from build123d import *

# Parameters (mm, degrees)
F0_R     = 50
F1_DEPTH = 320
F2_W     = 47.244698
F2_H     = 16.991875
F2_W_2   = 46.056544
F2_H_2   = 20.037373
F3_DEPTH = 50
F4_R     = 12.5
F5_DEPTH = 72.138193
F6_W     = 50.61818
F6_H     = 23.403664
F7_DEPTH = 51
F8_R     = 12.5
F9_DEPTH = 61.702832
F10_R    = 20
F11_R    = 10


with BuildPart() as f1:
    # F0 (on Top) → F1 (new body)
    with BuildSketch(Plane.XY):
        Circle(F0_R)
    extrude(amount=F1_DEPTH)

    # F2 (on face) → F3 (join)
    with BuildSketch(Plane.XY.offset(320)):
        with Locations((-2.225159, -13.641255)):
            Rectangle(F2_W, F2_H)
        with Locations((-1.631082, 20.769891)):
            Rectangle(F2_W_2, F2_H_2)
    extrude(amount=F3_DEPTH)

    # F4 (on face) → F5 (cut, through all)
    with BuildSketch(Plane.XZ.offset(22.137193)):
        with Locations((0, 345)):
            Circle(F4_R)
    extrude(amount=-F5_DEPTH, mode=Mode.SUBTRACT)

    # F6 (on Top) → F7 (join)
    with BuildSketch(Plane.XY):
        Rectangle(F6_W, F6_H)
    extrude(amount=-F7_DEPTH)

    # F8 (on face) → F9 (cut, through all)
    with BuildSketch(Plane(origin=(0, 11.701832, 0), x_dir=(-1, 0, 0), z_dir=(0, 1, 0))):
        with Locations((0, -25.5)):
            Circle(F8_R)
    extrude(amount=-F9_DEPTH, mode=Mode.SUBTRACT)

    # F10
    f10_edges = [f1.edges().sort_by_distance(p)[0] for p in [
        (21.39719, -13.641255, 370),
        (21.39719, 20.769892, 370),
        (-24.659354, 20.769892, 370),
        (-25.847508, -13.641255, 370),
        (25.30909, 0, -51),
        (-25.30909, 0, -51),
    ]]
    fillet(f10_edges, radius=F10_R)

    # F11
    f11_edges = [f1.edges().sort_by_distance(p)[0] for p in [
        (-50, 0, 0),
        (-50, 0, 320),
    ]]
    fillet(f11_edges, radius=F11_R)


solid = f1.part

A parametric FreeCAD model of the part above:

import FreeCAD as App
import Part
import Sketcher

V = App.Vector
Q = App.Units.Quantity


def edges_at(feature, points):
    """Names of the edges that pass closest to the given points."""
    edges = feature.Shape.Edges
    near = lambda p: min(range(len(edges)), key=lambda i: edges[i].distToShape(Part.Vertex(*p))[0])
    return sorted({f"Edge{near(p) + 1}" for p in points})

doc = App.newDocument("Part")
body = doc.addObject("PartDesign::Body", "Body")

sketch1 = doc.addObject("Sketcher::SketchObject", "Sketch")
body.addObject(sketch1)
sketch1.AttachmentSupport = (doc.XY_Plane, [""])
sketch1.MapMode = "FlatFace"
sketch1.addGeometry(Part.Circle(V(0, 0, 0), V(0, 0, 1), 50), False)
sketch1.addConstraint([
    Sketcher.Constraint("Coincident", 0, 3, -1, 1),
    Sketcher.Constraint("Diameter", 0, Q("100 mm")),
])
pad1 = doc.addObject("PartDesign::Pad", "Pad")
body.addObject(pad1)
pad1.Profile = sketch1
pad1.Length = 320

sketch2 = doc.addObject("Sketcher::SketchObject", "Sketch001")
body.addObject(sketch2)
sketch2.AttachmentSupport = (doc.XY_Plane, [""])
sketch2.MapMode = "FlatFace"
sketch2.AttachmentOffset = App.Placement(V(0, 0, 320), App.Rotation())
sketch2.addGeometry([
    Part.LineSegment(V(-26, -5, 0), V(-26, -22, 0)),
    Part.LineSegment(V(-26, -22, 0), V(21, -22, 0)),
    Part.LineSegment(V(21, -22, 0), V(21, -5, 0)),
    Part.LineSegment(V(21, -5, 0), V(-26, -5, 0)),
    Part.LineSegment(V(-25, 31, 0), V(-25, 11, 0)),
    Part.LineSegment(V(-25, 11, 0), V(21, 11, 0)),
    Part.LineSegment(V(21, 11, 0), V(21, 31, 0)),
    Part.LineSegment(V(21, 31, 0), V(-25, 31, 0)),
], False)
sketch2.addConstraint([
    Sketcher.Constraint("Coincident", 0, 2, 1, 1),
    Sketcher.Constraint("Coincident", 1, 2, 2, 1),
    Sketcher.Constraint("Coincident", 2, 2, 3, 1),
    Sketcher.Constraint("Coincident", 3, 2, 0, 1),
    Sketcher.Constraint("Coincident", 4, 2, 5, 1),
    Sketcher.Constraint("Coincident", 5, 2, 6, 1),
    Sketcher.Constraint("Coincident", 6, 2, 7, 1),
    Sketcher.Constraint("Coincident", 7, 2, 4, 1),
    Sketcher.Constraint("Vertical", 0),
    Sketcher.Constraint("Horizontal", 1),
    Sketcher.Constraint("Vertical", 2),
    Sketcher.Constraint("Horizontal", 3),
    Sketcher.Constraint("Vertical", 4),
    Sketcher.Constraint("Horizontal", 5),
    Sketcher.Constraint("Vertical", 6),
    Sketcher.Constraint("Horizontal", 7),
    Sketcher.Constraint("Vertical", 2, 2, 5, 2),
    Sketcher.Constraint("DistanceX", 1, 1, 1, 2, Q("47.244698 mm")),
    Sketcher.Constraint("DistanceX", 5, 1, 5, 2, Q("46.056544 mm")),
    Sketcher.Constraint("DistanceY", 0, 2, 0, 1, Q("16.991875 mm")),
    Sketcher.Constraint("DistanceY", 4, 2, 4, 1, Q("20.037373 mm")),
    Sketcher.Constraint("DistanceX", 0, 2, -1, 1, Q("25.847508 mm")),
    Sketcher.Constraint("DistanceY", 1, 2, 6, 2, Q("52.92577 mm")),
    Sketcher.Constraint("DistanceY", 0, 2, -1, 1, Q("22.137193 mm")),
])
pad2 = doc.addObject("PartDesign::Pad", "Pad001")
body.addObject(pad2)
pad2.Profile = sketch2
pad2.Length = 50

sketch3 = doc.addObject("Sketcher::SketchObject", "Sketch002")
body.addObject(sketch3)
sketch3.AttachmentSupport = (doc.XZ_Plane, [""])
sketch3.MapMode = "FlatFace"
sketch3.AttachmentOffset = App.Placement(V(0, 0, 22.137193), App.Rotation())
sketch3.addGeometry(Part.Circle(V(0, 345, 0), V(0, 0, 1), 12), False)
sketch3.addConstraint([
    Sketcher.Constraint("PointOnObject", 0, 3, -2),
    Sketcher.Constraint("Diameter", 0, Q("25 mm")),
    Sketcher.Constraint("DistanceY", -1, 1, 0, 3, Q("345 mm")),
])
pocket1 = doc.addObject("PartDesign::Pocket", "Pocket")
body.addObject(pocket1)
pocket1.Profile = sketch3
pocket1.Type = "ThroughAll"

sketch4 = doc.addObject("Sketcher::SketchObject", "Sketch003")
body.addObject(sketch4)
sketch4.AttachmentSupport = (doc.XY_Plane, [""])
sketch4.MapMode = "FlatFace"
sketch4.addGeometry([
    Part.LineSegment(V(-25, 12, 0), V(-25, -12, 0)),
    Part.LineSegment(V(-25, -12, 0), V(25, -12, 0)),
    Part.LineSegment(V(25, -12, 0), V(25, 12, 0)),
    Part.LineSegment(V(25, 12, 0), V(-25, 12, 0)),
], False)
sketch4.addConstraint([
    Sketcher.Constraint("Coincident", 0, 2, 1, 1),
    Sketcher.Constraint("Coincident", 1, 2, 2, 1),
    Sketcher.Constraint("Coincident", 2, 2, 3, 1),
    Sketcher.Constraint("Coincident", 3, 2, 0, 1),
    Sketcher.Constraint("Vertical", 0),
    Sketcher.Constraint("Horizontal", 1),
    Sketcher.Constraint("Vertical", 2),
    Sketcher.Constraint("Horizontal", 3),
    Sketcher.Constraint("Symmetric", 0, 2, 2, 2, -1, 1),
    Sketcher.Constraint("DistanceX", 1, 1, 1, 2, Q("50.61818 mm")),
    Sketcher.Constraint("DistanceY", 0, 2, 0, 1, Q("23.403664 mm")),
])
pad3 = doc.addObject("PartDesign::Pad", "Pad002")
body.addObject(pad3)
pad3.Profile = sketch4
pad3.Length = 51
pad3.Reversed = True

sketch5 = doc.addObject("Sketcher::SketchObject", "Sketch004")
body.addObject(sketch5)
sketch5.AttachmentSupport = (doc.XZ_Plane, [""])
sketch5.MapMode = "FlatFace"
sketch5.AttachmentOffset = App.Placement(V(0, 0, -11.701832), App.Rotation())
sketch5.addGeometry(Part.Circle(V(0, -26, 0), V(0, 0, 1), 12), False)
sketch5.addConstraint([
    Sketcher.Constraint("PointOnObject", 0, 3, -2),
    Sketcher.Constraint("Diameter", 0, Q("25 mm")),
    Sketcher.Constraint("DistanceY", 0, 3, -1, 1, Q("25.5 mm")),
])
pocket2 = doc.addObject("PartDesign::Pocket", "Pocket001")
body.addObject(pocket2)
pocket2.Profile = sketch5
pocket2.Type = "ThroughAll"
pocket2.Reversed = True
doc.recompute()

fillet = doc.addObject("PartDesign::Fillet", "Fillet")
body.addObject(fillet)
fillet.Base = (pocket2, edges_at(pocket2, [
    (21.397, -13.641, 370),
    (21.397, 20.77, 370),
    (-24.659, 20.77, 370),
    (-25.848, -13.641, 370),
    (25.309, 0, -51),
    (-25.309, 0, -51),
]))
fillet.Radius = 20
doc.recompute()

fillet2 = doc.addObject("PartDesign::Fillet", "Fillet001")
body.addObject(fillet2)
fillet2.Base = (fillet, edges_at(fillet, [(-50, 0, 0), (-50, 0, 320)]))
fillet2.Radius = 10

doc.recompute()
